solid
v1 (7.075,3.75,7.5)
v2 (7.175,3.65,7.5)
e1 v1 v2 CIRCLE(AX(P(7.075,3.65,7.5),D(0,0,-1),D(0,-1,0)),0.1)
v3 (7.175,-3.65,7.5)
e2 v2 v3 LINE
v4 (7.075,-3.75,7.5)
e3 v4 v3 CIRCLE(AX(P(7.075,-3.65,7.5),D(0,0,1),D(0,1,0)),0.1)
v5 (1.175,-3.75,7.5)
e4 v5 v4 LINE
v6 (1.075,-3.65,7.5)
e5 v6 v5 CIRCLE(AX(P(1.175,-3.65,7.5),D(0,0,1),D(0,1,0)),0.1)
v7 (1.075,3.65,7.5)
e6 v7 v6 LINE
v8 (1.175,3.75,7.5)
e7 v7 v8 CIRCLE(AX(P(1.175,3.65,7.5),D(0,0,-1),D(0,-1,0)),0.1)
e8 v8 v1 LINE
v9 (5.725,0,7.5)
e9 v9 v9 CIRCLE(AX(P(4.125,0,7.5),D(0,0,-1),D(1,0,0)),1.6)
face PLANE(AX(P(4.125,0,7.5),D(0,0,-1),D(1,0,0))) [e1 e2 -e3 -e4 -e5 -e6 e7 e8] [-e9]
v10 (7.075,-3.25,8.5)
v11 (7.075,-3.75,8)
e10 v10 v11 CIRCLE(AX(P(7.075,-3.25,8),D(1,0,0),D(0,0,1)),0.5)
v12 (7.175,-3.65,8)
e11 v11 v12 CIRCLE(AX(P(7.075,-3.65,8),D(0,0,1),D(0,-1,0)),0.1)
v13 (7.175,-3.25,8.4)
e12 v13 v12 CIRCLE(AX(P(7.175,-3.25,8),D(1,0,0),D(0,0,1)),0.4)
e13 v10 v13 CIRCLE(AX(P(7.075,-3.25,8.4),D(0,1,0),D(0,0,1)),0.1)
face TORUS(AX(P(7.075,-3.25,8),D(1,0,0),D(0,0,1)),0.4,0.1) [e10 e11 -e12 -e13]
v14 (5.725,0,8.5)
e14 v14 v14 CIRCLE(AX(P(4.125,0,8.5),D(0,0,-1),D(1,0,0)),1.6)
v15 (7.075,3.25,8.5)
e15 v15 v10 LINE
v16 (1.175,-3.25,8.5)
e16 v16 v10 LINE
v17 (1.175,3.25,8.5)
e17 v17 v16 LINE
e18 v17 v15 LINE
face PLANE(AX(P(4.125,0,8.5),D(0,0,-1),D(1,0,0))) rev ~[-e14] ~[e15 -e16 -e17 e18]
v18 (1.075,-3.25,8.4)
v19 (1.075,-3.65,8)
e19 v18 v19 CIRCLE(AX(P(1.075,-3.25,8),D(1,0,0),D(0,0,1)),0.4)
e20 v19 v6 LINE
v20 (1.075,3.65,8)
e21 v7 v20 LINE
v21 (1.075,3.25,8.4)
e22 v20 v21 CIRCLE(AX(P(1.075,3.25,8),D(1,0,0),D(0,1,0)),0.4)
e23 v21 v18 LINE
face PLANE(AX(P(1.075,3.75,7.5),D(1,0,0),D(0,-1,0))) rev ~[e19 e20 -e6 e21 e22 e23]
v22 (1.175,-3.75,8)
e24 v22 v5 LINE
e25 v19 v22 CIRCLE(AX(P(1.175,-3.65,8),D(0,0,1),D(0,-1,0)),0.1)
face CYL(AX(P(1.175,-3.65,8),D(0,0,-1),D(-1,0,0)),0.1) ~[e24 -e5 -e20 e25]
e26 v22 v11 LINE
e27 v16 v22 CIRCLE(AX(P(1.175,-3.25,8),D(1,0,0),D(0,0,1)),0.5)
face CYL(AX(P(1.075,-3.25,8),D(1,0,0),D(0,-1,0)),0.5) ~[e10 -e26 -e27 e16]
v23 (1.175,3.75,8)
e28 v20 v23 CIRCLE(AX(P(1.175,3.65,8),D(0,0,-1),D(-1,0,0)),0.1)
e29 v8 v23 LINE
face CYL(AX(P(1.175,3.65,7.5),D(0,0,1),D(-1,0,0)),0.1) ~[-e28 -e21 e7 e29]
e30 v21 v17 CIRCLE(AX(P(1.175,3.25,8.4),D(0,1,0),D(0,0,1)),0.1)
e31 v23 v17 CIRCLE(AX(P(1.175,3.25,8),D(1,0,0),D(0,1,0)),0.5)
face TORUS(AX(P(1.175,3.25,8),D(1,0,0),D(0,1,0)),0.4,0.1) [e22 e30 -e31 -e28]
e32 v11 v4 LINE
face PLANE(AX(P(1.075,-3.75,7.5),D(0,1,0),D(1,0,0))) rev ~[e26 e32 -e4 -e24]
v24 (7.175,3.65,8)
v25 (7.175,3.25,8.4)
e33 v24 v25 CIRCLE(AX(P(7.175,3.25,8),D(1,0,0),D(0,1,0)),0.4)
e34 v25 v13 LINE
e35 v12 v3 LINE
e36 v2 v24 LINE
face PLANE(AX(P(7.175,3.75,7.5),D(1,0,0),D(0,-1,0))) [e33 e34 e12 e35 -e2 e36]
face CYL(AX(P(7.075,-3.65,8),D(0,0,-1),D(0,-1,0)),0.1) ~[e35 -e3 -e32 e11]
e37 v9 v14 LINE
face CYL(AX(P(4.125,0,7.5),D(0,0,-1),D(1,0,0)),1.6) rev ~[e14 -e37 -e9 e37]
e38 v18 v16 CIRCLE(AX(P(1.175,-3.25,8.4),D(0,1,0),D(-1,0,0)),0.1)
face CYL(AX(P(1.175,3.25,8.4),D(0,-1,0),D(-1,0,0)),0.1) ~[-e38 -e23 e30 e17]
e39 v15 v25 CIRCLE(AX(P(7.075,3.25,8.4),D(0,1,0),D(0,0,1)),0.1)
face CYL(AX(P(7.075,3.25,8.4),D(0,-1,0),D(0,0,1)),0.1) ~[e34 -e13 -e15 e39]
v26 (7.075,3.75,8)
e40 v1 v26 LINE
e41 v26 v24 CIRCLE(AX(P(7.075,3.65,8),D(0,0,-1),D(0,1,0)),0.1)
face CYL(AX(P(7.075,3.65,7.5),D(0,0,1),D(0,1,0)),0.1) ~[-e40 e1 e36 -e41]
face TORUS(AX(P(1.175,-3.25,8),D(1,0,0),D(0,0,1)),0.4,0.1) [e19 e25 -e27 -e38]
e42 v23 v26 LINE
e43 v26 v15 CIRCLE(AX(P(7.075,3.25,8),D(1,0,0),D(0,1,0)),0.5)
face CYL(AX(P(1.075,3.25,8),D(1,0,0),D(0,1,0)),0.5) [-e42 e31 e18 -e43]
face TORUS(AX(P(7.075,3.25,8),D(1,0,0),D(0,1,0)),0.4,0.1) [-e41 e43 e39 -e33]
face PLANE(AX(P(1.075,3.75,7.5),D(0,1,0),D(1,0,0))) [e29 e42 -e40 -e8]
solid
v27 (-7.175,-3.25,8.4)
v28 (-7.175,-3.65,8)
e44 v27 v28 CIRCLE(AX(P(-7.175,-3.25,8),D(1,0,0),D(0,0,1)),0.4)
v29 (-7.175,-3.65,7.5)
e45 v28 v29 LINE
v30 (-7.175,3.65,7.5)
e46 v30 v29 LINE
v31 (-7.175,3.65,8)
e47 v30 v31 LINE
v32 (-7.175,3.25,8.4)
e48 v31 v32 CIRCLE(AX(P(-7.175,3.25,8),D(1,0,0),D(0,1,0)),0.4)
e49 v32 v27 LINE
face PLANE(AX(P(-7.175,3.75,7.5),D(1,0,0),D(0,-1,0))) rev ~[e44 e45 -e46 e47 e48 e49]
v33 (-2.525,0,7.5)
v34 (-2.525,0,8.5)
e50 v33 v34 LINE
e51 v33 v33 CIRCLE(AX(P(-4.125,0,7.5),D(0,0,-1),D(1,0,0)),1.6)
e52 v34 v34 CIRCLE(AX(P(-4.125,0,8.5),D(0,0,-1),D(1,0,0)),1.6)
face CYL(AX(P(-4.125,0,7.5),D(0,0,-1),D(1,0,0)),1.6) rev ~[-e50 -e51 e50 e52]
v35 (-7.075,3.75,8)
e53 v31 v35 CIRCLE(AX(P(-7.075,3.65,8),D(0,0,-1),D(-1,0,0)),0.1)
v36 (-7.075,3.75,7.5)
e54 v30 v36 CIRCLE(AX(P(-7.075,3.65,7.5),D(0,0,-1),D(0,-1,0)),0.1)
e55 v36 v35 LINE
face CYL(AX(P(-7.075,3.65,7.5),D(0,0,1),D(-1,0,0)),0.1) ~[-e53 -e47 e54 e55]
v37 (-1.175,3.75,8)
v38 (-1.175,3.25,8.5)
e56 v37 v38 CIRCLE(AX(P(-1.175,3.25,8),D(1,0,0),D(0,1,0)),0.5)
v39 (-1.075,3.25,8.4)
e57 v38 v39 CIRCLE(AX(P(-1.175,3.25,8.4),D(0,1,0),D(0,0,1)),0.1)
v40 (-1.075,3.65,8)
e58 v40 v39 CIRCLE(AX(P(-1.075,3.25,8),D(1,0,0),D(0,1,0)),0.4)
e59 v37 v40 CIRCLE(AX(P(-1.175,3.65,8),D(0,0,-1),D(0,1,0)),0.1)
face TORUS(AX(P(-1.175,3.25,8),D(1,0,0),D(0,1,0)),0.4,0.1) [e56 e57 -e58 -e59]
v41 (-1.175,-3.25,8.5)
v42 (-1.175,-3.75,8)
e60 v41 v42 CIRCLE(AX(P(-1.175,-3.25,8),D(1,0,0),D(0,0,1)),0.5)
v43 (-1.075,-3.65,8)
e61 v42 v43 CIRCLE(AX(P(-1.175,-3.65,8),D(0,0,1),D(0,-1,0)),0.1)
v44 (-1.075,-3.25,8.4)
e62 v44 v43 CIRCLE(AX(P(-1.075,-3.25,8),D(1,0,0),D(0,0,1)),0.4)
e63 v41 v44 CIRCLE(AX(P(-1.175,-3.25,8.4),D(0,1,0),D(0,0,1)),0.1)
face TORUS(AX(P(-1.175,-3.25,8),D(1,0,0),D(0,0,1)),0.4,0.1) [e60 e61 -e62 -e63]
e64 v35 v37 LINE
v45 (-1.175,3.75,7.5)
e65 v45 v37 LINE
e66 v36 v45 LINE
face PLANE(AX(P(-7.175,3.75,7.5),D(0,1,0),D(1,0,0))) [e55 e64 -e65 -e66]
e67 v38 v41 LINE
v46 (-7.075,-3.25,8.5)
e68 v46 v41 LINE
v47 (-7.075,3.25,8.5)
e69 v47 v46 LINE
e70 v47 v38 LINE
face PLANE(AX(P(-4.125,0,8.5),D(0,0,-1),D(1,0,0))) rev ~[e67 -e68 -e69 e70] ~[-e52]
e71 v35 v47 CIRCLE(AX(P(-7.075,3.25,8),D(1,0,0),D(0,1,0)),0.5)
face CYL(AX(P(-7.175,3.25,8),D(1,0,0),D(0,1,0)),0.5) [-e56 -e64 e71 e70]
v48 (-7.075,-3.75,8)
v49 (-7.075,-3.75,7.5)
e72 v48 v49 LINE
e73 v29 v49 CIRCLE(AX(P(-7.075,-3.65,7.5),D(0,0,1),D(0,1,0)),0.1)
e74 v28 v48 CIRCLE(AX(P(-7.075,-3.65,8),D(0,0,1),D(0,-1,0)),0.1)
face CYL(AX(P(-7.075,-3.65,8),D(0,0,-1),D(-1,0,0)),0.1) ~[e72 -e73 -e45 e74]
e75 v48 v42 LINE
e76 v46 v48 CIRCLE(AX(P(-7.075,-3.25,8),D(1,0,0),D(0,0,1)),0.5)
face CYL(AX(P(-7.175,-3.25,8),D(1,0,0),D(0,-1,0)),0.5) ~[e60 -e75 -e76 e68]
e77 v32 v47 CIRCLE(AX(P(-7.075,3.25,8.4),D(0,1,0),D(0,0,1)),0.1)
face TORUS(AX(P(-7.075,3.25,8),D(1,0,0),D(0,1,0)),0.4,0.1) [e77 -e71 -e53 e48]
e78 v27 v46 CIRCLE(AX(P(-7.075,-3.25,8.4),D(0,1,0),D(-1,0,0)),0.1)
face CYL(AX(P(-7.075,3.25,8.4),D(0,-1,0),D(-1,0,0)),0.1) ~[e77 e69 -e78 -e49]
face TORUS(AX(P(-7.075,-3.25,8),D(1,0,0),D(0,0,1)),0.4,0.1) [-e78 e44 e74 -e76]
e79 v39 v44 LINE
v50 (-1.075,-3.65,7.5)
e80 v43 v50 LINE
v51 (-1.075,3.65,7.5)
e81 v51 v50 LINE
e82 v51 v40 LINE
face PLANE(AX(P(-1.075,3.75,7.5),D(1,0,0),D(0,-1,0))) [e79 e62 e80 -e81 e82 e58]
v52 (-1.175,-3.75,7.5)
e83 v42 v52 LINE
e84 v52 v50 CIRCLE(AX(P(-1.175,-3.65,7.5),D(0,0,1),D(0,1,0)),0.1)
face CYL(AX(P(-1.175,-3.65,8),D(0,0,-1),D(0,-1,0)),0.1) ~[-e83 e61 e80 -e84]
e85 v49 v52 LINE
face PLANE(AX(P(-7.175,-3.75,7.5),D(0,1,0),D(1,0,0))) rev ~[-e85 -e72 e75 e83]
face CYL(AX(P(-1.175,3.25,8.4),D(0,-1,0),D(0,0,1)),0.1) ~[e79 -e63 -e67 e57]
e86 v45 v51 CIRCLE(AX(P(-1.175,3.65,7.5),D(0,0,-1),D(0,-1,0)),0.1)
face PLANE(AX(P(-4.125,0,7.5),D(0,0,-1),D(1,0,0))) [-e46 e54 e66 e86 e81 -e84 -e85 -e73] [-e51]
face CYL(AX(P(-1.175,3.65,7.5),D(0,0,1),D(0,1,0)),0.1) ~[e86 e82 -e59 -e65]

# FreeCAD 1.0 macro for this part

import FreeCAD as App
import Part
import Sketcher

V = App.Vector
Q = App.Units.Quantity


def edges_at(feature, points):
    """Names of the edges that pass closest to the given points."""
    edges = feature.Shape.Edges
    near = lambda p: min(range(len(edges)), key=lambda i: edges[i].distToShape(Part.Vertex(*p))[0])
    return sorted({f"Edge{near(p) + 1}" for p in points})

doc = App.newDocument("Part")
body = doc.addObject("PartDesign::Body", "Body")
body.AllowCompound = True

sketch1 = body.newObject("Sketcher::SketchObject", "Sketch")
sketch1.AttachmentSupport = (doc.getObject("XY_Plane"), [""])
sketch1.MapMode = "FlatFace"
sketch1.AttachmentOffset = App.Placement(V(0, 0, 7.5), App.Rotation())
sketch1.addGeometry([
    Part.LineSegment(V(-7.2, -3.8, 0), V(-7.2, 3.8, 0)),
    Part.LineSegment(V(-7.2, 3.8, 0), V(-1.1, 3.8, 0)),
    Part.LineSegment(V(-1.1, 3.8, 0), V(-1.1, -3.8, 0)),
    Part.LineSegment(V(-1.1, -3.8, 0), V(-7.2, -3.8, 0)),
    Part.Circle(V(-4.1, 0, 0), V(0, 0, 1), 1.6),
    Part.LineSegment(V(1.1, -3.8, 0), V(1.1, 3.8, 0)),
    Part.LineSegment(V(1.1, 3.8, 0), V(7.2, 3.8, 0)),
    Part.LineSegment(V(7.2, 3.8, 0), V(7.2, -3.8, 0)),
    Part.LineSegment(V(7.2, -3.8, 0), V(1.1, -3.8, 0)),
    Part.Circle(V(4.1, 0, 0), V(0, 0, 1), 1.6),
], False)
sketch1.addConstraint([
    Sketcher.Constraint("Coincident", 0, 2, 1, 1),
    Sketcher.Constraint("Coincident", 1, 2, 2, 1),
    Sketcher.Constraint("Coincident", 2, 2, 3, 1),
    Sketcher.Constraint("Coincident", 3, 2, 0, 1),
    Sketcher.Constraint("Coincident", 5, 2, 6, 1),
    Sketcher.Constraint("Coincident", 6, 2, 7, 1),
    Sketcher.Constraint("Coincident", 7, 2, 8, 1),
    Sketcher.Constraint("Coincident", 8, 2, 5, 1),
    Sketcher.Constraint("Vertical", 0),
    Sketcher.Constraint("Horizontal", 1),
    Sketcher.Constraint("Vertical", 2),
    Sketcher.Constraint("Horizontal", 3),
    Sketcher.Constraint("Vertical", 5),
    Sketcher.Constraint("Horizontal", 6),
    Sketcher.Constraint("Vertical", 7),
    Sketcher.Constraint("Horizontal", 8),
    Sketcher.Constraint("Equal", 4, 9),
    Sketcher.Constraint("Symmetric", 4, 3, 9, 3, -1, 1),
    Sketcher.Constraint("Symmetric", 2, 2, 5, 2, -1, 1),
    Sketcher.Constraint("Symmetric", 0, 2, 7, 2, -1, 1),
    Sketcher.Constraint("PointOnObject", 4, 3, -1),
    Sketcher.Constraint("Horizontal", 1, 2, 5, 2),
    Sketcher.Constraint("Diameter", 4, Q("3.2 mm")),
    Sketcher.Constraint("DistanceX", 1, 1, 1, 2, Q("6.1 mm")),
    Sketcher.Constraint("DistanceY", 0, 1, 0, 2, Q("7.5 mm")),
    Sketcher.Constraint("DistanceX", 0, 2, 9, 3, Q("11.3 mm")),
    Sketcher.Constraint("DistanceX", 4, 3, 9, 3, Q("8.25 mm")),
])
pad1 = body.newObject("PartDesign::Pad", "Pad")
pad1.Profile = sketch1
pad1.Length = 1
doc.recompute()

fillet = body.newObject("PartDesign::Fillet", "Fillet")
fillet.Base = (pad1, edges_at(pad1, [
    (-4.125, -3.75, 8.5),
    (-4.125, 3.75, 8.5),
    (4.125, -3.75, 8.5),
    (4.125, 3.75, 8.5),
]))
fillet.Radius = 0.5
doc.recompute()

fillet2 = body.newObject("PartDesign::Fillet", "Fillet001")
fillet2.Base = (fillet, edges_at(fillet, [
    (-7.175, 0, 8.5),
    (-1.075, 0, 8.5),
    (1.075, 0, 8.5),
    (7.175, 0, 8.5),
]))
fillet2.Radius = 0.1

doc.recompute()
